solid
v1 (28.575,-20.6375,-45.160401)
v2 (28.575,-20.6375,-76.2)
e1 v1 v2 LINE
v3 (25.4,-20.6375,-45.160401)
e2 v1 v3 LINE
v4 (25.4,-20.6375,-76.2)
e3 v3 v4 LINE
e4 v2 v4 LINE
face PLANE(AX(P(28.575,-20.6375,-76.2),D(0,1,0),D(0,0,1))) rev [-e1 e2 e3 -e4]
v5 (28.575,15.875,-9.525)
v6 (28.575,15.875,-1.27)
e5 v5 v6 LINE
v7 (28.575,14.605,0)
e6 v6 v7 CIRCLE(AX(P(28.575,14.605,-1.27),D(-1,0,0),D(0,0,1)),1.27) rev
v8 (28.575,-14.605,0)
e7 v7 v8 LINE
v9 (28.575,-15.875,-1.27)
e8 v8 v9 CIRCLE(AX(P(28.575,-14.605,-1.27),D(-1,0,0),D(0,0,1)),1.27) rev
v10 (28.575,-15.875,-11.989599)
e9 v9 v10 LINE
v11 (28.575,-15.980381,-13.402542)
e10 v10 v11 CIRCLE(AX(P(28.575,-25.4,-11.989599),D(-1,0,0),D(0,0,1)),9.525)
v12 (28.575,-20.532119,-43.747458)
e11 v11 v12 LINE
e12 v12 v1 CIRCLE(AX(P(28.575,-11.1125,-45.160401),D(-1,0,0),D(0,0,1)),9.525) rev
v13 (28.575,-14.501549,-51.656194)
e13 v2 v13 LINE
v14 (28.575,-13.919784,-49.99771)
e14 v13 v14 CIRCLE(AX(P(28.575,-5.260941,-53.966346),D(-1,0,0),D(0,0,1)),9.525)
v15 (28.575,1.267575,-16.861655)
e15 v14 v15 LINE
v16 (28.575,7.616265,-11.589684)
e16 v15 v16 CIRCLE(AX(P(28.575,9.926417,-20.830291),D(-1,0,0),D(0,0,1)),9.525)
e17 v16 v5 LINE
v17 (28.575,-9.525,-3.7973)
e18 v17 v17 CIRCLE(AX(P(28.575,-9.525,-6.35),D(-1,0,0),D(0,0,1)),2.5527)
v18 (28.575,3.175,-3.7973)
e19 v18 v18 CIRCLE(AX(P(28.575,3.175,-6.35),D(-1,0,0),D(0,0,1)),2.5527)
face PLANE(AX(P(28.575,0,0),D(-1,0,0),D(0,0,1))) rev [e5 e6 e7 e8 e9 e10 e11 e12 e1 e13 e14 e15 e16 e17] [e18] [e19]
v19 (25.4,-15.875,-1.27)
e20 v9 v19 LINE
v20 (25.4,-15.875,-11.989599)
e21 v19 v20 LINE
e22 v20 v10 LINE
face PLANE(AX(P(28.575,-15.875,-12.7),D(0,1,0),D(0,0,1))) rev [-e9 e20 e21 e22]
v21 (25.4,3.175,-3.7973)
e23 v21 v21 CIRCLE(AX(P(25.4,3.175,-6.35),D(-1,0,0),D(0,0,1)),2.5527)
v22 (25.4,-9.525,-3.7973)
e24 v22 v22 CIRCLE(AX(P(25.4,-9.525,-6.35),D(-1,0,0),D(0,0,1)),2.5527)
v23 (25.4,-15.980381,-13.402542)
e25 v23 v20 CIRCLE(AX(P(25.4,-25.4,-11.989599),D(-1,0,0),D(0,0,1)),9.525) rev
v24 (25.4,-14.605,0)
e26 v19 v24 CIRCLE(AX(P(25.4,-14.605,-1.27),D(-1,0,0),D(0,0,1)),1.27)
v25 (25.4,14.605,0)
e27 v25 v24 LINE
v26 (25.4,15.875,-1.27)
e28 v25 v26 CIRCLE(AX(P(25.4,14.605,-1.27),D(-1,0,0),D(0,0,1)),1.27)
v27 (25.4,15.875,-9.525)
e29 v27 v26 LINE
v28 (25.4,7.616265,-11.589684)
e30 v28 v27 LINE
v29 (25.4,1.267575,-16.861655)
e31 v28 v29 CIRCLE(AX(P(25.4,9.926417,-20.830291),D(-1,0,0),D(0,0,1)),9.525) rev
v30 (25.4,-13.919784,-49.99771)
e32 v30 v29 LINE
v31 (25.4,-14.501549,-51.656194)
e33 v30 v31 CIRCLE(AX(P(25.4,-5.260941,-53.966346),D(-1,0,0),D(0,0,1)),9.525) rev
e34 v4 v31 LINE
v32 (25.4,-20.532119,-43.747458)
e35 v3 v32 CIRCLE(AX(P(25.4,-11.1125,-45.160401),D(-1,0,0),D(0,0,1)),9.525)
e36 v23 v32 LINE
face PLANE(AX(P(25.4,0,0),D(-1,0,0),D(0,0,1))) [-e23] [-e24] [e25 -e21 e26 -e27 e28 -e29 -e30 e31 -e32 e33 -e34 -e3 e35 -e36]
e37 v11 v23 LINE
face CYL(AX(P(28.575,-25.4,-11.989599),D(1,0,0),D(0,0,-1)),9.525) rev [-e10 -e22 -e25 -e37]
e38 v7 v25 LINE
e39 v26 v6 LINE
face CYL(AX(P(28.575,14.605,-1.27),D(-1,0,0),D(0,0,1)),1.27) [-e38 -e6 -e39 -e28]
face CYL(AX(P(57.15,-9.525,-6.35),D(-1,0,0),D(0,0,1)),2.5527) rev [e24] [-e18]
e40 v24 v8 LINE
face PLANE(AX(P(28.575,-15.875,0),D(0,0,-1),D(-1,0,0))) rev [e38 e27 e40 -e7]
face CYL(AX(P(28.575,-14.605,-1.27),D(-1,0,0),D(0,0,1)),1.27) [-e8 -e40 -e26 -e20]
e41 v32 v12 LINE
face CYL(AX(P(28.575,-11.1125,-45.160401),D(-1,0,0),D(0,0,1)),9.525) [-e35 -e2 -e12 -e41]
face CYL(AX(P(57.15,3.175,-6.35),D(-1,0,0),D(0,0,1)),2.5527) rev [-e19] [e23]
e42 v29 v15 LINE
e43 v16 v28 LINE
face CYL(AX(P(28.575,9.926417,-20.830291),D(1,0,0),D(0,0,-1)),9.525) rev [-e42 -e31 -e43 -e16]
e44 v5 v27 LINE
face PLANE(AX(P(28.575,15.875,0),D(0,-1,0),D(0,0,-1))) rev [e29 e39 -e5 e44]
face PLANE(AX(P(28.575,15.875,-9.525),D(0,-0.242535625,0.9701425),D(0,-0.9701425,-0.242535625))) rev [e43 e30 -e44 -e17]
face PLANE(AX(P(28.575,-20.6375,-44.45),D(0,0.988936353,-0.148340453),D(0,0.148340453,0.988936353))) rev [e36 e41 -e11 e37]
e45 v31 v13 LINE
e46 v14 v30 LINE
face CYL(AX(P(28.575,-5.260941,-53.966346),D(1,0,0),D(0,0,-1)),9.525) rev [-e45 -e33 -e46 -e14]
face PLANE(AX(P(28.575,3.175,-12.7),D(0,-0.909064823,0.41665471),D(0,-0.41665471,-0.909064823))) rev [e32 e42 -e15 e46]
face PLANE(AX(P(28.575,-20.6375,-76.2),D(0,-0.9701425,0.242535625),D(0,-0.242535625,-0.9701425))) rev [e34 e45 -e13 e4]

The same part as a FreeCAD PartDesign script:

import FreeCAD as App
import Part
import Sketcher

V = App.Vector
Q = App.Units.Quantity


def edges_at(feature, points):
    """Names of the edges that pass closest to the given points."""
    edges = feature.Shape.Edges
    near = lambda p: min(range(len(edges)), key=lambda i: edges[i].distToShape(Part.Vertex(*p))[0])
    return sorted({f"Edge{near(p) + 1}" for p in points})

doc = App.newDocument("Part")
body = doc.addObject("PartDesign::Body", "Body")

# Sketch on XZ plane
sketch1 = body.newObject("Sketcher::SketchObject", "Sketch")
sketch1.AttachmentSupport = (doc.getObject("XZ_Plane"), [""])
sketch1.MapMode = "FlatFace"
sketch1.addGeometry(Part.LineSegment(V(-57, 0, 0), V(-57, 89, 0)), False)
sketch1.addGeometry(Part.LineSegment(V(-57, 89, 0), V(57, 89, 0)), False)
sketch1.addGeometry(Part.LineSegment(V(57, 89, 0), V(57, 0, 0)), False)
sketch1.addGeometry(Part.LineSegment(V(57, 0, 0), V(-57, 0, 0)), False)
sketch1.addGeometry(Part.LineSegment(V(48, 83, 0), V(-48, 83, 0)), False)
sketch1.addGeometry(Part.LineSegment(V(-48, 83, 0), V(-48, 6, 0)), False)
sketch1.addGeometry(Part.LineSegment(V(-48, 6, 0), V(48, 6, 0)), False)
sketch1.addGeometry(Part.LineSegment(V(48, 6, 0), V(48, 83, 0)), False)
sketch1.addConstraint(Sketcher.Constraint("Coincident", 0, 2, 1, 1))
sketch1.addConstraint(Sketcher.Constraint("Coincident", 1, 2, 2, 1))
sketch1.addConstraint(Sketcher.Constraint("Coincident", 2, 2, 3, 1))
sketch1.addConstraint(Sketcher.Constraint("Coincident", 3, 2, 0, 1))
sketch1.addConstraint(Sketcher.Constraint("Coincident", 4, 2, 5, 1))
sketch1.addConstraint(Sketcher.Constraint("Coincident", 5, 2, 6, 1))
sketch1.addConstraint(Sketcher.Constraint("Coincident", 6, 2, 7, 1))
sketch1.addConstraint(Sketcher.Constraint("Coincident", 7, 2, 4, 1))
sketch1.addConstraint(Sketcher.Constraint("Vertical", 0))
sketch1.addConstraint(Sketcher.Constraint("Horizontal", 1))
sketch1.addConstraint(Sketcher.Constraint("Vertical", 2))
sketch1.addConstraint(Sketcher.Constraint("Horizontal", 3))
sketch1.addConstraint(Sketcher.Constraint("Horizontal", 4))
sketch1.addConstraint(Sketcher.Constraint("Vertical", 5))
sketch1.addConstraint(Sketcher.Constraint("Horizontal", 6))
sketch1.addConstraint(Sketcher.Constraint("Vertical", 7))
sketch1.addConstraint(Sketcher.Constraint("Symmetric", 2, 2, 3, 2, -1, 1))
sketch1.addConstraint(Sketcher.Constraint("DistanceY", 5, 2, 5, 1, Q("3 in")))
sketch1.addConstraint(Sketcher.Constraint("DistanceX", 1, 1, 1, 2, Q("4.5 in")))
sketch1.addConstraint(Sketcher.Constraint("DistanceY", 0, 1, 0, 2, Q("3.5 in")))
sketch1.addConstraint(Sketcher.Constraint("DistanceX", 4, 2, 4, 1, Q("3.75 in")))
sketch1.addConstraint(Sketcher.Constraint("DistanceY", -1, 1, 4, 2, Q("3.25 in")))
sketch1.addConstraint(Sketcher.Constraint("DistanceX", 4, 2, -1, 1, Q("1.875 in")))
pad1 = body.newObject("PartDesign::Pad", "Pad")
pad1.Profile = sketch1
pad1.Type = "TwoLengths"
pad1.Length = Q("0.5 in")
pad1.Length2 = Q("0.5 in")
pad1.Reversed = True

# Sketch on XZ plane
sketch2 = body.newObject("Sketcher::SketchObject", "Sketch001")
sketch2.AttachmentSupport = (doc.getObject("XZ_Plane"), [""])
sketch2.MapMode = "FlatFace"
sketch2.AttachmentOffset = App.Placement(V(0, 0, 0.5 * 25.4), App.Rotation())
sketch2.addGeometry(Part.LineSegment(V(-57, 89, 0), V(-57, 0, 0)), False)
sketch2.addGeometry(Part.LineSegment(V(-57, 0, 0), V(57, 0, 0)), False)
sketch2.addGeometry(Part.LineSegment(V(57, 0, 0), V(57, 89, 0)), False)
sketch2.addGeometry(Part.LineSegment(V(57, 89, 0), V(-57, 89, 0)), False)
sketch2.addConstraint(Sketcher.Constraint("Coincident", 0, 2, 1, 1))
sketch2.addConstraint(Sketcher.Constraint("Coincident", 1, 2, 2, 1))
sketch2.addConstraint(Sketcher.Constraint("Coincident", 2, 2, 3, 1))
sketch2.addConstraint(Sketcher.Constraint("Coincident", 3, 2, 0, 1))
sketch2.addConstraint(Sketcher.Constraint("Vertical", 0))
sketch2.addConstraint(Sketcher.Constraint("Horizontal", 1))
sketch2.addConstraint(Sketcher.Constraint("Vertical", 2))
sketch2.addConstraint(Sketcher.Constraint("Horizontal", 3))
sketch2.addConstraint(Sketcher.Constraint("Symmetric", 0, 2, 1, 2, -1, 1))
sketch2.addConstraint(Sketcher.Constraint("DistanceX", 1, 1, 1, 2, Q("4.5 in")))
sketch2.addConstraint(Sketcher.Constraint("DistanceY", 0, 2, 0, 1, Q("3.5 in")))
pad2 = body.newObject("PartDesign::Pad", "Pad001")
pad2.Profile = sketch2
pad2.Length = Q("0.125 in")

# Sketch on XZ plane
sketch3 = body.newObject("Sketcher::SketchObject", "Sketch002")
sketch3.AttachmentSupport = (doc.getObject("XZ_Plane"), [""])
sketch3.MapMode = "FlatFace"
sketch3.AttachmentOffset = App.Placement(V(0, 0, 0.5 * 25.4), App.Rotation())
sketch3.addGeometry(Part.LineSegment(V(-48, 38, 0), V(-48, 64, 0)), False)
sketch3.addGeometry(Part.LineSegment(V(-48, 64, 0), V(-6, 64, 0)), False)
sketch3.addGeometry(Part.LineSegment(V(-6, 64, 0), V(-6, 38, 0)), False)
sketch3.addGeometry(Part.LineSegment(V(-6, 38, 0), V(-48, 38, 0)), False)
sketch3.addGeometry(Part.LineSegment(V(6, 38, 0), V(6, 64, 0)), False)
sketch3.addGeometry(Part.LineSegment(V(6, 64, 0), V(48, 64, 0)), False)
sketch3.addGeometry(Part.LineSegment(V(48, 64, 0), V(48, 38, 0)), False)
sketch3.addGeometry(Part.LineSegment(V(48, 38, 0), V(6, 38, 0)), False)
sketch3.addConstraint(Sketcher.Constraint("Coincident", 0, 2, 1, 1))
sketch3.addConstraint(Sketcher.Constraint("Coincident", 1, 2, 2, 1))
sketch3.addConstraint(Sketcher.Constraint("Coincident", 2, 2, 3, 1))
sketch3.addConstraint(Sketcher.Constraint("Coincident", 3, 2, 0, 1))
sketch3.addConstraint(Sketcher.Constraint("Coincident", 4, 2, 5, 1))
sketch3.addConstraint(Sketcher.Constraint("Coincident", 5, 2, 6, 1))
sketch3.addConstraint(Sketcher.Constraint("Coincident", 6, 2, 7, 1))
sketch3.addConstraint(Sketcher.Constraint("Coincident", 7, 2, 4, 1))
sketch3.addConstraint(Sketcher.Constraint("Vertical", 0))
sketch3.addConstraint(Sketcher.Constraint("Horizontal", 1))
sketch3.addConstraint(Sketcher.Constraint("Vertical", 2))
sketch3.addConstraint(Sketcher.Constraint("Horizontal", 3))
sketch3.addConstraint(Sketcher.Constraint("Vertical", 4))
sketch3.addConstraint(Sketcher.Constraint("Horizontal", 5))
sketch3.addConstraint(Sketcher.Constraint("Vertical", 6))
sketch3.addConstraint(Sketcher.Constraint("Horizontal", 7))
sketch3.addConstraint(Sketcher.Constraint("Symmetric", 1, 2, 4, 2, -2))
sketch3.addConstraint(Sketcher.Constraint("Symmetric", 3, 2, 6, 2, -2))
sketch3.addConstraint(Sketcher.Constraint("DistanceY", 0, 1, 0, 2, Q("1 in")))
sketch3.addConstraint(Sketcher.Constraint("DistanceY", -1, 1, 0, 2, Q("2.5 in")))
sketch3.addConstraint(Sketcher.Constraint("DistanceX", 1, 2, 4, 2, Q("0.5 in")))
sketch3.addConstraint(Sketcher.Constraint("DistanceX", 1, 1, 1, 2, Q("1.625 in")))
pad3 = body.newObject("PartDesign::Pad", "Pad002")
pad3.Profile = sketch3
pad3.Length = Q("0.25 in")
pad3.Reversed = True

# Sketch on YZ plane
sketch4 = body.newObject("Sketcher::SketchObject", "Sketch003")
sketch4.AttachmentSupport = (doc.getObject("YZ_Plane"), [""])
sketch4.MapMode = "FlatFace"
sketch4.AttachmentOffset = App.Placement(V(0, 0, -2.25 * 25.4), App.Rotation())
sketch4.addGeometry(Part.Circle(V(0, 51, 0), V(0, 0, 1), 10), False)
sketch4.addConstraint(Sketcher.Constraint("PointOnObject", 0, 3, -2))
sketch4.addConstraint(Sketcher.Constraint("Diameter", 0, Q("0.785 in")))
sketch4.addConstraint(Sketcher.Constraint("DistanceY", -1, 1, 0, 3, Q("2 in")))
pocket1 = body.newObject("PartDesign::Pocket", "Pocket")
pocket1.Profile = sketch4
pocket1.Type = "ThroughAll"
pocket1.Reversed = True

# Sketch on XZ plane
sketch5 = body.newObject("Sketcher::SketchObject", "Sketch004")
sketch5.AttachmentSupport = (doc.getObject("XZ_Plane"), [""])
sketch5.MapMode = "FlatFace"
sketch5.AttachmentOffset = App.Placement(V(0, 0, 0.5 * 25.4), App.Rotation())
sketch5.addGeometry(Part.LineSegment(V(-32, 38, 0), V(-32, 64, 0)), False)
sketch5.addGeometry(Part.LineSegment(V(-32, 64, 0), V(-6, 64, 0)), False)
sketch5.addGeometry(Part.LineSegment(V(-6, 64, 0), V(-6, 38, 0)), False)
sketch5.addGeometry(Part.LineSegment(V(-6, 38, 0), V(-32, 38, 0)), False)
sketch5.addGeometry(Part.LineSegment(V(6, 38, 0), V(6, 64, 0)), False)
sketch5.addGeometry(Part.LineSegment(V(6, 64, 0), V(32, 64, 0)), False)
sketch5.addGeometry(Part.LineSegment(V(32, 64, 0), V(32, 38, 0)), False)
sketch5.addGeometry(Part.LineSegment(V(32, 38, 0), V(6, 38, 0)), False)
sketch5.addConstraint(Sketcher.Constraint("Coincident", 0, 2, 1, 1))
sketch5.addConstraint(Sketcher.Constraint("Coincident", 1, 2, 2, 1))
sketch5.addConstraint(Sketcher.Constraint("Coincident", 2, 2, 3, 1))
sketch5.addConstraint(Sketcher.Constraint("Coincident", 3, 2, 0, 1))
sketch5.addConstraint(Sketcher.Constraint("Coincident", 4, 2, 5, 1))
sketch5.addConstraint(Sketcher.Constraint("Coincident", 5, 2, 6, 1))
sketch5.addConstraint(Sketcher.Constraint("Coincident", 6, 2, 7, 1))
sketch5.addConstraint(Sketcher.Constraint("Coincident", 7, 2, 4, 1))
sketch5.addConstraint(Sketcher.Constraint("Vertical", 0))
sketch5.addConstraint(Sketcher.Constraint("Horizontal", 1))
sketch5.addConstraint(Sketcher.Constraint("Vertical", 2))
sketch5.addConstraint(Sketcher.Constraint("Horizontal", 3))
sketch5.addConstraint(Sketcher.Constraint("Vertical", 4))
sketch5.addConstraint(Sketcher.Constraint("Horizontal", 5))
sketch5.addConstraint(Sketcher.Constraint("Vertical", 6))
sketch5.addConstraint(Sketcher.Constraint("Horizontal", 7))
sketch5.addConstraint(Sketcher.Constraint("Symmetric", 1, 2, 4, 2, -2))
sketch5.addConstraint(Sketcher.Constraint("Symmetric", 3, 2, 6, 2, -2))
sketch5.addConstraint(Sketcher.Constraint("DistanceY", 0, 1, 0, 2, Q("1 in")))
sketch5.addConstraint(Sketcher.Constraint("DistanceY", -1, 1, 0, 2, Q("2.5 in")))
sketch5.addConstraint(Sketcher.Constraint("DistanceX", 1, 2, 4, 2, Q("0.5 in")))
sketch5.addConstraint(Sketcher.Constraint("DistanceX", 1, 1, 1, 2, Q("1.025 in")))
pad4 = body.newObject("PartDesign::Pad", "Pad003")
pad4.Profile = sketch5
pad4.Length = Q("0.16 in")
pad4.Reversed = True

# Sketch on XZ plane
sketch6 = body.newObject("Sketcher::SketchObject", "Sketch005")
sketch6.AttachmentSupport = (doc.getObject("XZ_Plane"), [""])
sketch6.MapMode = "FlatFace"
sketch6.AttachmentOffset = App.Placement(V(0, 0, -0.5 * 25.4), App.Rotation())
sketch6.addGeometry(Part.Circle(V(-54, 3.2, 0), V(0, 0, 1), 1), False)
sketch6.addGeometry(Part.Circle(V(54, 3.2, 0), V(0, 0, 1), 1), False)
sketch6.addGeometry(Part.Circle(V(-54, 85.7, 0), V(0, 0, 1), 1), False)
sketch6.addGeometry(Part.Circle(V(54, 85.7, 0), V(0, 0, 1), 1), False)
sketch6.addConstraint(Sketcher.Constraint("Equal", 0, 1))
sketch6.addConstraint(Sketcher.Constraint("Equal", 1, 2))
sketch6.addConstraint(Sketcher.Constraint("Equal", 2, 3))
sketch6.addConstraint(Sketcher.Constraint("Symmetric", 0, 3, 1, 3, -2))
sketch6.addConstraint(Sketcher.Constraint("Symmetric", 2, 3, 3, 3, -2))
sketch6.addConstraint(Sketcher.Constraint("Vertical", 0, 3, 2, 3))
sketch6.addConstraint(Sketcher.Constraint("Diameter", 0, Q("0.075 in")))
sketch6.addConstraint(Sketcher.Constraint("DistanceX", 0, 3, 1, 3, Q("4.25 in")))
sketch6.addConstraint(Sketcher.Constraint("DistanceY", 0, 3, 2, 3, Q("3.25 in")))
sketch6.addConstraint(Sketcher.Constraint("DistanceY", -1, 1, 0, 3, Q("0.125 in")))
pocket2 = body.newObject("PartDesign::Pocket", "Pocket001")
pocket2.Profile = sketch6
pocket2.Length = Q("1 in")
pocket2.Reversed = True

# Sketch on YZ plane
sketch7 = body.newObject("Sketcher::SketchObject", "Sketch006")
sketch7.AttachmentSupport = (doc.getObject("YZ_Plane"), [""])
sketch7.MapMode = "FlatFace"
sketch7.addGeometry(Part.LineSegment(V(16, 0, 0), V(-16, 0, 0)), False)
sketch7.addGeometry(Part.LineSegment(V(-16, 0, 0), V(-16, -13, 0)), False)
sketch7.addGeometry(Part.LineSegment(V(-16, -13, 0), V(3, -13, 0)), False)
sketch7.addGeometry(Part.LineSegment(V(3, -13, 0), V(16, -10, 0)), False)
sketch7.addGeometry(Part.LineSegment(V(16, -10, 0), V(16, 0, 0)), False)
sketch7.addConstraint(Sketcher.Constraint("Coincident", 0, 2, 1, 1))
sketch7.addConstraint(Sketcher.Constraint("Coincident", 1, 2, 2, 1))
sketch7.addConstraint(Sketcher.Constraint("Coincident", 2, 2, 3, 1))
sketch7.addConstraint(Sketcher.Constraint("Coincident", 3, 2, 4, 1))
sketch7.addConstraint(Sketcher.Constraint("Coincident", 4, 2, 0, 1))
sketch7.addConstraint(Sketcher.Constraint("Horizontal", 0))
sketch7.addConstraint(Sketcher.Constraint("Vertical", 1))
sketch7.addConstraint(Sketcher.Constraint("Horizontal", 2))
sketch7.addConstraint(Sketcher.Constraint("Vertical", 4))
sketch7.addConstraint(Sketcher.Constraint("Symmetric", 0, 2, 4, 2, -1, 1))
sketch7.addConstraint(Sketcher.Constraint("DistanceY", 1, 2, 1, 1, Q("0.5 in")))
sketch7.addConstraint(Sketcher.Constraint("DistanceX", 0, 2, 0, 1, Q("1.25 in")))
sketch7.addConstraint(Sketcher.Constraint("DistanceX", 2, 1, 2, 2, Q("0.75 in")))
sketch7.addConstraint(Sketcher.Constraint("DistanceY", 4, 1, 4, 2, Q("0.375 in")))
pad5 = body.newObject("PartDesign::Pad", "Pad004")
pad5.Profile = sketch7
pad5.Length = Q("2 in")
pad5.Midplane = True

# Sketch on YZ plane
sketch8 = body.newObject("Sketcher::SketchObject", "Sketch007")
sketch8.AttachmentSupport = (doc.getObject("YZ_Plane"), [""])
sketch8.MapMode = "FlatFace"
sketch8.AttachmentOffset = App.Placement(V(0, 0, 1 * 25.4), App.Rotation())
sketch8.addGeometry(Part.Circle(V(-9.5, -6.3, 0), V(0, 0, 1), 4.8), False)
sketch8.addGeometry(Part.Circle(V(3.2, -6.3, 0), V(0, 0, 1), 4.8), False)
sketch8.addConstraint(Sketcher.Constraint("Equal", 0, 1))
sketch8.addConstraint(Sketcher.Constraint("Horizontal", 0, 3, 1, 3))
sketch8.addConstraint(Sketcher.Constraint("Diameter", 0, Q("0.375 in")))
sketch8.addConstraint(Sketcher.Constraint("DistanceX", 0, 3, 1, 3, Q("0.5 in")))
sketch8.addConstraint(Sketcher.Constraint("DistanceY", 0, 3, -1, 1, Q("0.25 in")))
sketch8.addConstraint(Sketcher.Constraint("DistanceX", 0, 3, -1, 1, Q("0.375 in")))
pocket3 = body.newObject("PartDesign::Pocket", "Pocket002")
pocket3.Profile = sketch8
pocket3.Type = "ThroughAll"
pocket3.Midplane = True

# Sketch on XY plane
sketch9 = body.newObject("Sketcher::SketchObject", "Sketch008")
sketch9.AttachmentSupport = (doc.getObject("XY_Plane"), [""])
sketch9.MapMode = "FlatFace"
sketch9.AttachmentOffset = App.Placement(V(0, 0, 2.75 * 25.4), App.Rotation())
sketch9.addGeometry(Part.LineSegment(V(30, -10, 0), V(30, -15, 0)), False)
sketch9.addGeometry(Part.LineSegment(V(30, -15, 0), V(23, -15, 0)), False)
sketch9.addGeometry(Part.LineSegment(V(23, -15, 0), V(23, -10, 0)), False)
sketch9.addGeometry(Part.LineSegment(V(23, -10, 0), V(30, -10, 0)), False)
sketch9.addGeometry(Part.LineSegment(V(16, -10, 0), V(16, -15, 0)), False)
sketch9.addGeometry(Part.LineSegment(V(16, -15, 0), V(9, -15, 0)), False)
sketch9.addGeometry(Part.LineSegment(V(9, -15, 0), V(9, -10, 0)), False)
sketch9.addGeometry(Part.LineSegment(V(9, -10, 0), V(16, -10, 0)), False)
sketch9.addConstraint(Sketcher.Constraint("Coincident", 0, 2, 1, 1))
sketch9.addConstraint(Sketcher.Constraint("Coincident", 1, 2, 2, 1))
sketch9.addConstraint(Sketcher.Constraint("Coincident", 2, 2, 3, 1))
sketch9.addConstraint(Sketcher.Constraint("Coincident", 3, 2, 0, 1))
sketch9.addConstraint(Sketcher.Constraint("Coincident", 4, 2, 5, 1))
sketch9.addConstraint(Sketcher.Constraint("Coincident", 5, 2, 6, 1))
sketch9.addConstraint(Sketcher.Constraint("Coincident", 6, 2, 7, 1))
sketch9.addConstraint(Sketcher.Constraint("Coincident", 7, 2, 4, 1))
sketch9.addConstraint(Sketcher.Constraint("Vertical", 0))
sketch9.addConstraint(Sketcher.Constraint("Horizontal", 1))
sketch9.addConstraint(Sketcher.Constraint("Vertical", 2))
sketch9.addConstraint(Sketcher.Constraint("Horizontal", 3))
sketch9.addConstraint(Sketcher.Constraint("Vertical", 4))
sketch9.addConstraint(Sketcher.Constraint("Horizontal", 5))
sketch9.addConstraint(Sketcher.Constraint("Vertical", 6))
sketch9.addConstraint(Sketcher.Constraint("Horizontal", 7))
sketch9.addConstraint(Sketcher.Constraint("Horizontal", 1, 2, 4, 2))
sketch9.addConstraint(Sketcher.Constraint("Horizontal", 3, 2, 6, 2))
sketch9.addConstraint(Sketcher.Constraint("Equal", 3, 5))
sketch9.addConstraint(Sketcher.Constraint("DistanceY", 0, 2, 0, 1, Q("0.2 in")))
sketch9.addConstraint(Sketcher.Constraint("DistanceX", 1, 2, 1, 1, Q("0.25 in")))
sketch9.addConstraint(Sketcher.Constraint("DistanceY", 0, 2, -1, 1, Q("0.6 in")))
sketch9.addConstraint(Sketcher.Constraint("DistanceX", 4, 2, 1, 2, Q("0.3 in")))
sketch9.addConstraint(Sketcher.Constraint("DistanceX", -1, 1, 0, 2, Q("1.1625 in")))
pocket4 = body.newObject("PartDesign::Pocket", "Pocket003")
pocket4.Profile = sketch9
pocket4.Length = Q("1.5 in")
doc.recompute()

mirrored = body.newObject("PartDesign::Mirrored", "Mirrored")
mirrored.Originals = [pocket4]
mirrored.MirrorPlane = (doc.getObject("YZ_Plane"), [""])
body.Tip = mirrored
body2 = doc.addObject("PartDesign::Body", "Body001")

# Sketch on XZ plane
sketch10 = body2.newObject("Sketcher::SketchObject", "Sketch009")
sketch10.AttachmentSupport = (doc.getObject("XZ_Plane001"), [""])
sketch10.MapMode = "FlatFace"
sketch10.AttachmentOffset = App.Placement(V(0, 0, -0.5 * 25.4), App.Rotation())
sketch10.addGeometry(Part.LineSegment(V(-57, 0, 0), V(-57, 89, 0)), False)
sketch10.addGeometry(Part.LineSegment(V(-57, 89, 0), V(57, 89, 0)), False)
sketch10.addGeometry(Part.LineSegment(V(57, 89, 0), V(57, 0, 0)), False)
sketch10.addGeometry(Part.LineSegment(V(57, 0, 0), V(-57, 0, 0)), False)
sketch10.addConstraint(Sketcher.Constraint("Coincident", 0, 2, 1, 1))
sketch10.addConstraint(Sketcher.Constraint("Coincident", 1, 2, 2, 1))
sketch10.addConstraint(Sketcher.Constraint("Coincident", 2, 2, 3, 1))
sketch10.addConstraint(Sketcher.Constraint("Coincident", 3, 2, 0, 1))
sketch10.addConstraint(Sketcher.Constraint("Vertical", 0))
sketch10.addConstraint(Sketcher.Constraint("Horizontal", 1))
sketch10.addConstraint(Sketcher.Constraint("Vertical", 2))
sketch10.addConstraint(Sketcher.Constraint("Horizontal", 3))
sketch10.addConstraint(Sketcher.Constraint("Symmetric", 2, 2, 3, 2, -1, 1))
sketch10.addConstraint(Sketcher.Constraint("DistanceX", 1, 1, 1, 2, Q("4.5 in")))
sketch10.addConstraint(Sketcher.Constraint("DistanceY", 0, 1, 0, 2, Q("3.5 in")))
pad6 = body2.newObject("PartDesign::Pad", "Pad005")
pad6.Profile = sketch10
pad6.Length = Q("0.125 in")
pad6.Reversed = True

# Sketch on XZ plane
sketch11 = body2.newObject("Sketcher::SketchObject", "Sketch010")
sketch11.AttachmentSupport = (doc.getObject("XZ_Plane001"), [""])
sketch11.MapMode = "FlatFace"
sketch11.AttachmentOffset = App.Placement(V(0, 0, -0.625 * 25.4), App.Rotation())
sketch11.addGeometry(Part.Circle(V(-54, 3.2, 0), V(0, 0, 1), 1.9), False)
sketch11.addGeometry(Part.Circle(V(-54, 85.7, 0), V(0, 0, 1), 1.9), False)
sketch11.addGeometry(Part.Circle(V(54, 85.7, 0), V(0, 0, 1), 1.9), False)
sketch11.addGeometry(Part.Circle(V(54, 3.2, 0), V(0, 0, 1), 1.9), False)
sketch11.addConstraint(Sketcher.Constraint("Equal", 0, 1))
sketch11.addConstraint(Sketcher.Constraint("Equal", 1, 2))
sketch11.addConstraint(Sketcher.Constraint("Equal", 2, 3))
sketch11.addConstraint(Sketcher.Constraint("Symmetric", 1, 3, 2, 3, -2))
sketch11.addConstraint(Sketcher.Constraint("Symmetric", 0, 3, 3, 3, -2))
sketch11.addConstraint(Sketcher.Constraint("Vertical", 0, 3, 1, 3))
sketch11.addConstraint(Sketcher.Constraint("Diameter", 0, Q("0.15 in")))
sketch11.addConstraint(Sketcher.Constraint("DistanceY", 0, 3, 1, 3, Q("3.25 in")))
sketch11.addConstraint(Sketcher.Constraint("DistanceX", 1, 3, 2, 3, Q("4.25 in")))
sketch11.addConstraint(Sketcher.Constraint("DistanceY", -1, 1, 0, 3, Q("0.125 in")))
pocket5 = body2.newObject("PartDesign::Pocket", "Pocket004")
pocket5.Profile = sketch11
pocket5.Length = Q("0.125 in")
pocket5.Reversed = True

# Sketch on XZ plane
sketch12 = body2.newObject("Sketcher::SketchObject", "Sketch011")
sketch12.AttachmentSupport = (doc.getObject("XZ_Plane001"), [""])
sketch12.MapMode = "FlatFace"
sketch12.AttachmentOffset = App.Placement(V(0, 0, -0.625 * 25.4), App.Rotation())
sketch12.addGeometry(Part.Circle(V(36.2, 69.5, 0), V(0, 0, 1), 5.1), False)
sketch12.addGeometry(Part.Circle(V(44.5, 62.8, 0), V(0, 0, 1), 1.9), False)
sketch12.addGeometry(Part.Circle(V(28, 76.2, 0), V(0, 0, 1), 1.9), False)
sketch12.addGeometry(Part.Circle(V(2.6, 60.4, 0), V(0, 0, 1), 2.4), False)
sketch12.addConstraint(Sketcher.Constraint("Equal", 1, 2))
sketch12.addConstraint(Sketcher.Constraint("Diameter", 0, Q("0.4 in")))
sketch12.addConstraint(Sketcher.Constraint("Diameter", 1, Q("0.15 in")))
sketch12.addConstraint(Sketcher.Constraint("Diameter", 3, Q("0.1875 in")))
sketch12.addConstraint(Sketcher.Constraint("DistanceY", -1, 1, 2, 3, Q("3 in")))
sketch12.addConstraint(Sketcher.Constraint("DistanceX", 3, 3, 2, 3, Q("1 in")))
sketch12.addConstraint(Sketcher.Constraint("DistanceX", -1, 1, 1, 3, Q("1.75 in")))
sketch12.addConstraint(Sketcher.Constraint("DistanceY", 3, 3, 1, 3, Q("0.09375 in")))
sketch12.addConstraint(Sketcher.Constraint("DistanceX", -1, 1, 0, 3, Q("36.232509 mm")))
sketch12.addConstraint(Sketcher.Constraint("DistanceX", -1, 1, 2, 3, Q("28.015018 mm")))
sketch12.addConstraint(Sketcher.Constraint("DistanceY", -1, 1, 0, 3, Q("69.504267 mm")))
sketch12.addConstraint(Sketcher.Constraint("DistanceY", -1, 1, 1, 3, Q("62.808533 mm")))
pocket6 = body2.newObject("PartDesign::Pocket", "Pocket005")
pocket6.Profile = sketch12
pocket6.Length = Q("0.125 in")
pocket6.Reversed = True
body3 = doc.addObject("PartDesign::Body", "Body002")

# Sketch on YZ plane
sketch13 = body3.newObject("Sketcher::SketchObject", "Sketch012")
sketch13.AttachmentSupport = (doc.getObject("YZ_Plane002"), [""])
sketch13.MapMode = "FlatFace"
sketch13.AttachmentOffset = App.Placement(V(0, 0, 1 * 25.4), App.Rotation())
sketch13.addGeometry(Part.LineSegment(V(16, -10, 0), V(16, 0, 0)), False)
sketch13.addGeometry(Part.LineSegment(V(16, 0, 0), V(-16, 0, 0)), False)
sketch13.addGeometry(Part.LineSegment(V(-16, 0, 0), V(-16, -13, 0)), False)
sketch13.addGeometry(Part.LineSegment(V(-16, -13, 0), V(-21, -44, 0)), False)
sketch13.addGeometry(Part.LineSegment(V(-21, -44, 0), V(-21, -76, 0)), False)
sketch13.addGeometry(Part.LineSegment(V(-21, -76, 0), V(-14, -51, 0)), False)
sketch13.addGeometry(Part.LineSegment(V(-14, -51, 0), V(3, -13, 0)), False)
sketch13.addGeometry(Part.LineSegment(V(3, -13, 0), V(16, -10, 0)), False)
sketch13.addConstraint(Sketcher.Constraint("Coincident", 0, 2, 1, 1))
sketch13.addConstraint(Sketcher.Constraint("Coincident", 1, 2, 2, 1))
sketch13.addConstraint(Sketcher.Constraint("Coincident", 2, 2, 3, 1))
sketch13.addConstraint(Sketcher.Constraint("Coincident", 3, 2, 4, 1))
sketch13.addConstraint(Sketcher.Constraint("Coincident", 4, 2, 5, 1))
sketch13.addConstraint(Sketcher.Constraint("Coincident", 5, 2, 6, 1))
sketch13.addConstraint(Sketcher.Constraint("Coincident", 6, 2, 7, 1))
sketch13.addConstraint(Sketcher.Constraint("Coincident", 7, 2, 0, 1))
sketch13.addConstraint(Sketcher.Constraint("Vertical", 0))
sketch13.addConstraint(Sketcher.Constraint("Horizontal", 1))
sketch13.addConstraint(Sketcher.Constraint("Vertical", 2))
sketch13.addConstraint(Sketcher.Constraint("Vertical", 4))
sketch13.addConstraint(Sketcher.Constraint("Symmetric", 0, 2, 1, 2, -1, 1))
sketch13.addConstraint(Sketcher.Constraint("Horizontal", 2, 2, 6, 2))
sketch13.addConstraint(Sketcher.Constraint("Equal", 1, 4))
sketch13.addConstraint(Sketcher.Constraint("DistanceY", 2, 2, 2, 1, Q("0.5 in")))
sketch13.addConstraint(Sketcher.Constraint("DistanceY", 4, 2, -1, 1, Q("3 in")))
sketch13.addConstraint(Sketcher.Constraint("DistanceY", 5, 2, -1, 1, Q("2 in")))
sketch13.addConstraint(Sketcher.Constraint("DistanceX", 1, 2, 1, 1, Q("1.25 in")))
sketch13.addConstraint(Sketcher.Constraint("DistanceX", 6, 2, 0, 2, Q("0.5 in")))
sketch13.addConstraint(Sketcher.Constraint("DistanceY", 0, 1, 0, 2, Q("0.375 in")))
sketch13.addConstraint(Sketcher.Constraint("DistanceX", 3, 2, 5, 2, Q("0.25 in")))
sketch13.addConstraint(Sketcher.Constraint("DistanceX", 3, 2, -1, 1, Q("0.8125 in")))
pad7 = body3.newObject("PartDesign::Pad", "Pad006")
pad7.Profile = sketch13
pad7.Length = Q("0.125 in")

# Sketch on YZ plane
sketch14 = body3.newObject("Sketcher::SketchObject", "Sketch013")
sketch14.AttachmentSupport = (doc.getObject("YZ_Plane002"), [""])
sketch14.MapMode = "FlatFace"
sketch14.AttachmentOffset = App.Placement(V(0, 0, 1 * 25.4), App.Rotation())
sketch14.addGeometry(Part.Circle(V(3.2, -6.3, 0), V(0, 0, 1), 2.6), False)
sketch14.addGeometry(Part.Circle(V(-9.5, -6.3, 0), V(0, 0, 1), 2.6), False)
sketch14.addConstraint(Sketcher.Constraint("Equal", 0, 1))
sketch14.addConstraint(Sketcher.Constraint("Horizontal", 0, 3, 1, 3))
sketch14.addConstraint(Sketcher.Constraint("Diameter", 0, Q("0.201 in")))
sketch14.addConstraint(Sketcher.Constraint("DistanceX", 1, 3, 0, 3, Q("0.5 in")))
sketch14.addConstraint(Sketcher.Constraint("DistanceY", 0, 3, -1, 1, Q("0.25 in")))
sketch14.addConstraint(Sketcher.Constraint("DistanceX", -1, 1, 0, 3, Q("0.125 in")))
pocket7 = body3.newObject("PartDesign::Pocket", "Pocket006")
pocket7.Profile = sketch14
pocket7.Type = "ThroughAll"
pocket7.Reversed = True
doc.recompute()

fillet = body3.newObject("PartDesign::Fillet", "Fillet")
fillet.Base = (pocket7, edges_at(pocket7, [
    (26.988, 3.175, -12.7),
    (26.988, -14.287, -50.8),
    (26.988, -20.637, -44.45),
    (26.988, -15.875, -12.7),
]))
fillet.Radius = Q("0.375 in")
doc.recompute()

fillet2 = body3.newObject("PartDesign::Fillet", "Fillet001")
fillet2.Base = (fillet, edges_at(fillet, [(26.988, 15.875, 0), (26.988, -15.875, 0)]))
fillet2.Radius = Q("0.05 in")
body4 = doc.addObject("PartDesign::Body", "Body003")
doc.recompute()

mirroring = doc.addObject("Part::Mirroring", "Mirroring")
mirroring.Source = body3
mirroring.Base = V(0, 0, 0)
mirroring.Normal = V(1, 0, 0)
body4.BaseFeature = mirroring
doc.recompute()
body.Visibility = False
body2.Visibility = False
body4.Visibility = False
mirroring.Visibility = False

doc.recompute()
